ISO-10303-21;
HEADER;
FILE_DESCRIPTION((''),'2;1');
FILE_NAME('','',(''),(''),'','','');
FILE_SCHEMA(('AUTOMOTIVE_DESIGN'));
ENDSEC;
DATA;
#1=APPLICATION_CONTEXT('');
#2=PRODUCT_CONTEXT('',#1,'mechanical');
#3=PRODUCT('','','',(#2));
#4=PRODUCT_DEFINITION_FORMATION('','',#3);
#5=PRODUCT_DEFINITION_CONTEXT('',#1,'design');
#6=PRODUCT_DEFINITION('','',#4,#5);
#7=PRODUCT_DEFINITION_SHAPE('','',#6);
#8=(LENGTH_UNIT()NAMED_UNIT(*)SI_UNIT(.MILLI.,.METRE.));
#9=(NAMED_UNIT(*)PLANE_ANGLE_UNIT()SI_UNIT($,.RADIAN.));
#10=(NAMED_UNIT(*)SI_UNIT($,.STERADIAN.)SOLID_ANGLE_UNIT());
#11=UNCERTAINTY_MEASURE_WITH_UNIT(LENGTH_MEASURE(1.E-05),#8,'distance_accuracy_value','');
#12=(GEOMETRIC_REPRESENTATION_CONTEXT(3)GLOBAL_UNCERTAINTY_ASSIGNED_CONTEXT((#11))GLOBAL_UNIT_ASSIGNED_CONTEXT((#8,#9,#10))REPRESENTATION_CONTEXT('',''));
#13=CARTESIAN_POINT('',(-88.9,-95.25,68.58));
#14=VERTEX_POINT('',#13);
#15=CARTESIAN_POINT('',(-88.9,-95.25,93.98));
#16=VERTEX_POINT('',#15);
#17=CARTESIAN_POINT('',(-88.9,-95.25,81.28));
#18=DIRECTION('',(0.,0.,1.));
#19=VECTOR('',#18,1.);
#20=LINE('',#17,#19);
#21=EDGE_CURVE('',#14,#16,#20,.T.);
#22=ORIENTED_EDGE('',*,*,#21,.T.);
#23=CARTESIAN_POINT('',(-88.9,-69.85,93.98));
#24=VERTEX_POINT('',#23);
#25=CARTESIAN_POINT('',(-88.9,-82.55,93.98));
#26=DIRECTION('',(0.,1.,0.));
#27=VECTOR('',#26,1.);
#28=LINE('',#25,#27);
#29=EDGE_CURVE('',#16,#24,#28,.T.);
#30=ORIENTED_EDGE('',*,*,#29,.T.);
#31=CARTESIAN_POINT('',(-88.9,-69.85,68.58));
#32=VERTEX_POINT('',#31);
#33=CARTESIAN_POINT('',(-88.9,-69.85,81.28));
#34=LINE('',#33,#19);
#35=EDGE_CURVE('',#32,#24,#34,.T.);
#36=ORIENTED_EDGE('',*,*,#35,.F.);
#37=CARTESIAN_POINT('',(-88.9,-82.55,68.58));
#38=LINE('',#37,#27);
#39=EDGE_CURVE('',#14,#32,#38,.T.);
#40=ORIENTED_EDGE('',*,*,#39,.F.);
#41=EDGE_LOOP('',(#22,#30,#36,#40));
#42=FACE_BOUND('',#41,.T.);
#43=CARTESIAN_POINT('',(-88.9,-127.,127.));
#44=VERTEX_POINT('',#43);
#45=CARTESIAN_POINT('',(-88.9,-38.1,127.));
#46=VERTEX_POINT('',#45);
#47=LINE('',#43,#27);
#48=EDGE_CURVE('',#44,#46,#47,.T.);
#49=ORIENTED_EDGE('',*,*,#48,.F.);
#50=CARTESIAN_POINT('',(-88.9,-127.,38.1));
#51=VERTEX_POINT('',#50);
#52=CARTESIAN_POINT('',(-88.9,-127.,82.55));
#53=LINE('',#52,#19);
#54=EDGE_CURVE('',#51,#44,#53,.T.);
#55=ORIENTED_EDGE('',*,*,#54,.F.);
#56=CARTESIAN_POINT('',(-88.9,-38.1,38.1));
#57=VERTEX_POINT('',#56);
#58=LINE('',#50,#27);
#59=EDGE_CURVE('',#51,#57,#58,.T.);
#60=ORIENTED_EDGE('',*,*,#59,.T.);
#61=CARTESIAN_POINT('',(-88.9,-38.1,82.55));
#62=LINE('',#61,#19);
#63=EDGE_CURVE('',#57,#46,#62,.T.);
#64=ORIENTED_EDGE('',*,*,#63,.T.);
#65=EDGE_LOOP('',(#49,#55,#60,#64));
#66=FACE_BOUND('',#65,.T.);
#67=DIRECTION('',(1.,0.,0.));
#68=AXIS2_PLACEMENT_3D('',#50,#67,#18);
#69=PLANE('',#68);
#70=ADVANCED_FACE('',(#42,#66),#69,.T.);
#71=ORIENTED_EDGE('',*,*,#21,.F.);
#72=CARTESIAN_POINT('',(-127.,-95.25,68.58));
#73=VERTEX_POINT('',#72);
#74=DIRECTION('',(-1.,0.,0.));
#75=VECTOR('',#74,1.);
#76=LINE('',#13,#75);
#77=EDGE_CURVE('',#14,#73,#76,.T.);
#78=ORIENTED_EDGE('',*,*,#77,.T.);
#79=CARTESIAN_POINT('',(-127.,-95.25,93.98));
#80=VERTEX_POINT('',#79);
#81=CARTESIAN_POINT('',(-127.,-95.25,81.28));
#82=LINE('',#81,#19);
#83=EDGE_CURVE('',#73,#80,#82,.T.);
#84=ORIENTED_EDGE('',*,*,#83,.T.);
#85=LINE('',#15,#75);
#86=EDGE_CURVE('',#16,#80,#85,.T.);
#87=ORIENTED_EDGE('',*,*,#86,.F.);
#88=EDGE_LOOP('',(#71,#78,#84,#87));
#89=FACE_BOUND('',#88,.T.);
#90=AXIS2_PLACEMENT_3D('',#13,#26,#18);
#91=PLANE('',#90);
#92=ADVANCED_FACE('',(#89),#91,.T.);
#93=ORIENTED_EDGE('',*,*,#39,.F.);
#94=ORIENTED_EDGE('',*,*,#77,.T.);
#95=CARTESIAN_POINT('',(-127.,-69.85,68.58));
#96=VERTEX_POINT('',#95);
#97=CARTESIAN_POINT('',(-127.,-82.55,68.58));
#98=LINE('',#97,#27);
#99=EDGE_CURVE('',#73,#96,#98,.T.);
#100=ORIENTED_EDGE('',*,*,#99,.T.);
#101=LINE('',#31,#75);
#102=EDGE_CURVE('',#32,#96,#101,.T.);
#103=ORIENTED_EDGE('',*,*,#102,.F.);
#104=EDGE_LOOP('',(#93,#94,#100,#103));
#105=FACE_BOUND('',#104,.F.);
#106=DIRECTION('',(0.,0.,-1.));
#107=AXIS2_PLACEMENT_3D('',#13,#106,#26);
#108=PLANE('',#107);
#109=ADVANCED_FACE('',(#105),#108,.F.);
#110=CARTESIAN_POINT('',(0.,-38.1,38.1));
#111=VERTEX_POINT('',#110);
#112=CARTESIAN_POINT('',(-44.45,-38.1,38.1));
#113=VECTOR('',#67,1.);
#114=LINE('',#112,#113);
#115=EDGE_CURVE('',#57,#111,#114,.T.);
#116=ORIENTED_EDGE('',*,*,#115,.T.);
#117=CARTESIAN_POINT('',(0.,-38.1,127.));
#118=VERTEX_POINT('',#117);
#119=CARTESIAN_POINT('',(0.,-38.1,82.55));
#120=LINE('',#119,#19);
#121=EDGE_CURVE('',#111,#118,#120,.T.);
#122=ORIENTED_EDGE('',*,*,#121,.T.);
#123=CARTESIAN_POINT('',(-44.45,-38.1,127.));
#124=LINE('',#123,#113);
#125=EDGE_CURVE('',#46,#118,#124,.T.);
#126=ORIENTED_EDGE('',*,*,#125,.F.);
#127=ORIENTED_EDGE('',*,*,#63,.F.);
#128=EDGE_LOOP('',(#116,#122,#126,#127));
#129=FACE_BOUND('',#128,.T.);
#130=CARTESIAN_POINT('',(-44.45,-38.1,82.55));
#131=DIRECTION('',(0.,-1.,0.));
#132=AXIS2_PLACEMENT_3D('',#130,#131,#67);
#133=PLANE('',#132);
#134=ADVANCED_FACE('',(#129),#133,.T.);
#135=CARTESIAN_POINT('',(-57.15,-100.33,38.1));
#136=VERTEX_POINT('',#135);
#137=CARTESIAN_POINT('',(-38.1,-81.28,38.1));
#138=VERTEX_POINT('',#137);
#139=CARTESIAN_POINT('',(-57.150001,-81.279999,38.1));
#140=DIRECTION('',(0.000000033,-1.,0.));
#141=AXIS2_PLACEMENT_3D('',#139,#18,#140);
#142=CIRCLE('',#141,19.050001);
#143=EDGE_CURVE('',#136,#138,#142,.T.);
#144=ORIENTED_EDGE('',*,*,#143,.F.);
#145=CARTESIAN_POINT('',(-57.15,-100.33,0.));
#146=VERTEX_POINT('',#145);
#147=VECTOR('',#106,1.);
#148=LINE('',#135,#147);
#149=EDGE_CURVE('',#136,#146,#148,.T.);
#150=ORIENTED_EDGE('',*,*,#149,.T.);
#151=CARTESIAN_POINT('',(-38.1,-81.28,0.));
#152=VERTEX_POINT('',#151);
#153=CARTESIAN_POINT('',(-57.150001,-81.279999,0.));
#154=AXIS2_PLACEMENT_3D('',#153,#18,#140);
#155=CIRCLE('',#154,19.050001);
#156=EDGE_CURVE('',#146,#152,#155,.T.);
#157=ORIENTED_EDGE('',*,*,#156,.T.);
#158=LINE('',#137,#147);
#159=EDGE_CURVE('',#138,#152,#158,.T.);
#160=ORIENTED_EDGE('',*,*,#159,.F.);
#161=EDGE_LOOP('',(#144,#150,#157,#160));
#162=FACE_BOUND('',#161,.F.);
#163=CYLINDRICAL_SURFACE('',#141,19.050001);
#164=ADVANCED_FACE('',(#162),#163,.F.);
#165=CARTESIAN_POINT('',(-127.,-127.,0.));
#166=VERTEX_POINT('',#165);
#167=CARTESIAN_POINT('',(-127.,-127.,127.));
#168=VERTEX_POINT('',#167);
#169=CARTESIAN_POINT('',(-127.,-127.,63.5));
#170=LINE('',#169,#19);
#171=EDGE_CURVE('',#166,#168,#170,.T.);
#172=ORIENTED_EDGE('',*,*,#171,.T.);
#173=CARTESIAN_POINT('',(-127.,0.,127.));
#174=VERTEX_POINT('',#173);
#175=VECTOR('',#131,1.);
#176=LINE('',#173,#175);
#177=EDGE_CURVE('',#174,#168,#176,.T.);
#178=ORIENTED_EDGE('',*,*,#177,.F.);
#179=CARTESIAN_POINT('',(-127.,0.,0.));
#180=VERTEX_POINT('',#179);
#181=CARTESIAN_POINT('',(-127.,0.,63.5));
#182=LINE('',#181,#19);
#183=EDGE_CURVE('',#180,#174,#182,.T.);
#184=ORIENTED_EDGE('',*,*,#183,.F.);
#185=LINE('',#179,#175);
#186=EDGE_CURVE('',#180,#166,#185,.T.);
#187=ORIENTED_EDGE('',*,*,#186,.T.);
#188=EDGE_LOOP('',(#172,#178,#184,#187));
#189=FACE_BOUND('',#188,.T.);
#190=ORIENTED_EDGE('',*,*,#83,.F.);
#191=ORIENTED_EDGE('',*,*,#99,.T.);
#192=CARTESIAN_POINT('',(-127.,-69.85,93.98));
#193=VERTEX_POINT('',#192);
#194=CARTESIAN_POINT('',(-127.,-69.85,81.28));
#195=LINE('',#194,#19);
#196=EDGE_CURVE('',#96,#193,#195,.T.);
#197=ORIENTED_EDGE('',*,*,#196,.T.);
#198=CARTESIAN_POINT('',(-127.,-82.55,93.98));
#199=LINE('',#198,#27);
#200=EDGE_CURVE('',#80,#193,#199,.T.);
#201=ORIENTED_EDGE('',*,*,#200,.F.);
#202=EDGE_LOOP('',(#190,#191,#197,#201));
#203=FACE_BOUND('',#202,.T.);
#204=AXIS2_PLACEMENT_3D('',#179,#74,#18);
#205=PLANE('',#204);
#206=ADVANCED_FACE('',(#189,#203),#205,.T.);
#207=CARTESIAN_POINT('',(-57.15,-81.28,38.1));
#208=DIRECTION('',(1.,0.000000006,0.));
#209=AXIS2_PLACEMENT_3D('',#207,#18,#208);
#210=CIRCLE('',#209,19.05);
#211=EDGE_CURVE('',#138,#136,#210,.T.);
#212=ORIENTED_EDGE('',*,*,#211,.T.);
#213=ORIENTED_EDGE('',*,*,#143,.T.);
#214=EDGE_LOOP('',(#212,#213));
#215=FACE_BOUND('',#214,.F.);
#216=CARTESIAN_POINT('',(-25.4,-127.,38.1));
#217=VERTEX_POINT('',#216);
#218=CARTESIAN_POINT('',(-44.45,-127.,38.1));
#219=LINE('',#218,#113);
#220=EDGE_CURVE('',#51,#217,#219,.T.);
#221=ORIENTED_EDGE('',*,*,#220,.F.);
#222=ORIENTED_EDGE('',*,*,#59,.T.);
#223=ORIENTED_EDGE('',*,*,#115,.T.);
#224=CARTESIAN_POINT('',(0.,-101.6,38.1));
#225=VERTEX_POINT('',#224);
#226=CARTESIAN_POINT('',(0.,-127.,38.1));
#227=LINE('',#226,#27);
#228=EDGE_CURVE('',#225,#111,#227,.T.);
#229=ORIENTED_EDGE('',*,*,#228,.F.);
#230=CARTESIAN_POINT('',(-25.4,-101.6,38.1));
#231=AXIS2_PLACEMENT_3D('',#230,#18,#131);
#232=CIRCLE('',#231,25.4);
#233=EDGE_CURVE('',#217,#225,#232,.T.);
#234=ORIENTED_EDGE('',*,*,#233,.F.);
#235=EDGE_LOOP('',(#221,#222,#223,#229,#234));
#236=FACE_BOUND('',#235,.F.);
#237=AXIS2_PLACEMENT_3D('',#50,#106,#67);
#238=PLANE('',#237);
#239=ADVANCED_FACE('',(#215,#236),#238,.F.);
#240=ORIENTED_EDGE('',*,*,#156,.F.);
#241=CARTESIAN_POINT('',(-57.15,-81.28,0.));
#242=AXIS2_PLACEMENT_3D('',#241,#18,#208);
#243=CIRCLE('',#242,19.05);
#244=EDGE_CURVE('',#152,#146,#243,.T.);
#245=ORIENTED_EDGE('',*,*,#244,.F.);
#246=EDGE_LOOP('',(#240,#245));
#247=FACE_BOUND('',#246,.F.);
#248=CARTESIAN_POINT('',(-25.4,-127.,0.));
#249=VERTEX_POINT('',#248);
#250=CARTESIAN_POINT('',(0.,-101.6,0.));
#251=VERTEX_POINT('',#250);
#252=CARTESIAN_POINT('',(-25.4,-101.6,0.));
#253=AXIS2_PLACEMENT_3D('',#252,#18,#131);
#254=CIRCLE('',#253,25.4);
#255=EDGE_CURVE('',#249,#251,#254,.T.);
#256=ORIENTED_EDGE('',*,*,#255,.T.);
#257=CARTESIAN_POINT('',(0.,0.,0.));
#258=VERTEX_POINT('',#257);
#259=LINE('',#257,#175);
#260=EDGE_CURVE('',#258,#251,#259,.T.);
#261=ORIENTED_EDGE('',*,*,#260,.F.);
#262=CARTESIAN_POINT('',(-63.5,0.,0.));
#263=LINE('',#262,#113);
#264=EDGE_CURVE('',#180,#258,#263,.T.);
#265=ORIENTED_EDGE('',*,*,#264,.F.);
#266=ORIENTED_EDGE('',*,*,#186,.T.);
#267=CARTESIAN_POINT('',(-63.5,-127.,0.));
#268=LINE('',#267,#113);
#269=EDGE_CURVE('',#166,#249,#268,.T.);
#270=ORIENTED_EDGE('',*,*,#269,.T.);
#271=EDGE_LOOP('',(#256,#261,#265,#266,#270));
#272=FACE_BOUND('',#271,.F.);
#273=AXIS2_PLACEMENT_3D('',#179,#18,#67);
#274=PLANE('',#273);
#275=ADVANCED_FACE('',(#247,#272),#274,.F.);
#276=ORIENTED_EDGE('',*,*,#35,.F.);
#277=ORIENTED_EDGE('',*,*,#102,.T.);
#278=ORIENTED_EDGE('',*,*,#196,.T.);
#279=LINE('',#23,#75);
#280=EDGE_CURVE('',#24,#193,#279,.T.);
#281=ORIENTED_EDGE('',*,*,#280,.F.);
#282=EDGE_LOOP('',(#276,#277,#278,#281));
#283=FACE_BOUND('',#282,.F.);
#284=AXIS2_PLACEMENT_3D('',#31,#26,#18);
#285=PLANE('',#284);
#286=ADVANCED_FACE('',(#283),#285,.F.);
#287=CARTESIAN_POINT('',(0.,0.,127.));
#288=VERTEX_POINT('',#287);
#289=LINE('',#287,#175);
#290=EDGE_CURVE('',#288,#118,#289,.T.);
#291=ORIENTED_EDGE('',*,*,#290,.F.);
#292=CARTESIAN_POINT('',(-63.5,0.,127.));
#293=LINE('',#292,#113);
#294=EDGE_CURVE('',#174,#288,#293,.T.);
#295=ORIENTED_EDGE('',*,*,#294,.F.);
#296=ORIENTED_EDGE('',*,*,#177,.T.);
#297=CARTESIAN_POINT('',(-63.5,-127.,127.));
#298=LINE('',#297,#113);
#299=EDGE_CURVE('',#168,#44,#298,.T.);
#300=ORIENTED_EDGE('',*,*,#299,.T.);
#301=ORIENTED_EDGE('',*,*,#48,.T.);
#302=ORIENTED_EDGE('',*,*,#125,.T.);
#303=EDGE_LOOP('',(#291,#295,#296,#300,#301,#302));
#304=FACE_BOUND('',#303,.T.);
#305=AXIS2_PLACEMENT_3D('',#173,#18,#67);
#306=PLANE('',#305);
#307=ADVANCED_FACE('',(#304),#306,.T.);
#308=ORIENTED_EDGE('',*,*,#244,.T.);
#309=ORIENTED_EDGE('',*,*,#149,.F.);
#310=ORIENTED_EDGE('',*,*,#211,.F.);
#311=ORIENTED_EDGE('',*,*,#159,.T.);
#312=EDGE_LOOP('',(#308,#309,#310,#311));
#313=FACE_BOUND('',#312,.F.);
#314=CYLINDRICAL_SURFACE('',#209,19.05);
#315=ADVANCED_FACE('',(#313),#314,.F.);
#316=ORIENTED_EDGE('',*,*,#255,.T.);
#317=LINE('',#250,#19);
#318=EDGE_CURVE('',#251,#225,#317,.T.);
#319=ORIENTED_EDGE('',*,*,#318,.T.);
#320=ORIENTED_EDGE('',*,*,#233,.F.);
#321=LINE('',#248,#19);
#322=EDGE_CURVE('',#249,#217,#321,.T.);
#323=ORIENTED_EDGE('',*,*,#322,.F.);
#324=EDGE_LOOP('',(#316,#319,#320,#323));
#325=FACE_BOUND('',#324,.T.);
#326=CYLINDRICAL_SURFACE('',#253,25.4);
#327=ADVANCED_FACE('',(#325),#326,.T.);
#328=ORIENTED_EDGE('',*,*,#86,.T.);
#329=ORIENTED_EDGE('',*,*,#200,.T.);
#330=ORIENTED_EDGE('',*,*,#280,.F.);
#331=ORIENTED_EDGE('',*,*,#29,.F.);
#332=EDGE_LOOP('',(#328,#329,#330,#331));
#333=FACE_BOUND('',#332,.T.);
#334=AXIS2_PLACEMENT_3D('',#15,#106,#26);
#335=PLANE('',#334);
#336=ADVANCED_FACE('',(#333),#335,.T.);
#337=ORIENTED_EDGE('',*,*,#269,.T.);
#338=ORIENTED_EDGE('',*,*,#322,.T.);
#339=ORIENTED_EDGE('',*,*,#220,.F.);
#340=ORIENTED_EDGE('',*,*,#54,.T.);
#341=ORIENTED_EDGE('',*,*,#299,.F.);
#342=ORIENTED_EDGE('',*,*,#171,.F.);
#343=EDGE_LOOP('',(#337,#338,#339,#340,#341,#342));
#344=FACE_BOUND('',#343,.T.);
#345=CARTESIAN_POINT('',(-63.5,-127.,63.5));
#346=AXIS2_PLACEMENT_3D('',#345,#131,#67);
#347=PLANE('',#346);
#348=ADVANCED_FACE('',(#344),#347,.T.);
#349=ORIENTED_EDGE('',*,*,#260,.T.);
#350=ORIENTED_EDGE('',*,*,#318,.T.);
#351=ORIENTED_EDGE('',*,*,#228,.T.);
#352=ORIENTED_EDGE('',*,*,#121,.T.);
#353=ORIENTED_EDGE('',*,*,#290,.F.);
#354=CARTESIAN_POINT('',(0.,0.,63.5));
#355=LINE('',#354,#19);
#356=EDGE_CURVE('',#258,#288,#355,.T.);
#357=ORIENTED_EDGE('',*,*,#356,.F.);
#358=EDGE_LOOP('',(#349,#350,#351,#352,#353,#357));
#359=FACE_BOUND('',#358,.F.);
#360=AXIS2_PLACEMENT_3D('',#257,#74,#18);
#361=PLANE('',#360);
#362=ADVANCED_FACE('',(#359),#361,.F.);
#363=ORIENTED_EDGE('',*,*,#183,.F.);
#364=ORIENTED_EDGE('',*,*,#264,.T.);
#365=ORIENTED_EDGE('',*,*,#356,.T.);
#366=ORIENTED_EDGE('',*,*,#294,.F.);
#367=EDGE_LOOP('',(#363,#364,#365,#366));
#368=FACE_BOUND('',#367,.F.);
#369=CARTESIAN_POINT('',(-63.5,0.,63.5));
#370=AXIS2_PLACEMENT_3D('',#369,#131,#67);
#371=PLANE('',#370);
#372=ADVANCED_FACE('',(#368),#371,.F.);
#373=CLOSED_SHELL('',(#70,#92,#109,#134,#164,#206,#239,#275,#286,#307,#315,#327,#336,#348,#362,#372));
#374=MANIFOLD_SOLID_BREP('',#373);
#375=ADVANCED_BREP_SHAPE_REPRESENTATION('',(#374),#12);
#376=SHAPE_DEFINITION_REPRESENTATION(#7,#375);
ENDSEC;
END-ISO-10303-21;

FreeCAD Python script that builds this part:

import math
import FreeCAD as App
import Part
import Sketcher
from FreeCAD import Vector
Q = App.Units.Quantity


def edges_at(feature, points):
    """Names of the edges that pass closest to the given points."""
    edges = feature.Shape.Edges
    near = lambda p: min(range(len(edges)), key=lambda i: edges[i].distToShape(Part.Vertex(*p))[0])
    return sorted({f"Edge{near(p) + 1}" for p in points})


def add_polygon(sketch, points):
    """Adds a closed chain of lines whose ends are joined by coincident constraints."""
    first, n = sketch.GeometryCount, len(points)
    for a, b in zip(points, points[1:] + points[:1]):
        sketch.addGeometry(Part.LineSegment(App.Vector(*a, 0), App.Vector(*b, 0)), False)
    for i in range(n):
        sketch.addConstraint(Sketcher.Constraint("Coincident", first + i, 2, first + (i + 1) % n, 1))

doc = App.newDocument("Part")
body = doc.addObject("PartDesign::Body", "Body")

# Sketch on XZ plane
sketch1 = doc.addObject("Sketcher::SketchObject", "Sketch")
body.addObject(sketch1)
sketch1.AttachmentSupport = (doc.XZ_Plane, [""])
sketch1.MapMode = "FlatFace"
add_polygon(sketch1, [(-127, 127), (-127, 0), (0, 0), (0, 127)])  # lines 0-3
sketch1.addConstraint(Sketcher.Constraint("Vertical", 0))
sketch1.addConstraint(Sketcher.Constraint("Horizontal", 1))
sketch1.addConstraint(Sketcher.Constraint("Vertical", 2))
sketch1.addConstraint(Sketcher.Constraint("Horizontal", 3))
sketch1.addConstraint(Sketcher.Constraint("Coincident", 1, 2, -1, 1))
sketch1.addConstraint(Sketcher.Constraint("Equal", 3, 0))
sketch1.addConstraint(Sketcher.Constraint("DistanceX", 1, 1, 1, 2, Q("5 in")))
pad1 = doc.addObject("PartDesign::Pad", "Pad")
body.addObject(pad1)
pad1.Profile = sketch1
pad1.Length = Q("5 in")

# Sketch on XZ plane
sketch2 = doc.addObject("Sketcher::SketchObject", "Sketch001")
body.addObject(sketch2)
sketch2.AttachmentSupport = (doc.XZ_Plane, [""])
sketch2.MapMode = "FlatFace"
sketch2.AttachmentOffset = App.Placement(Vector(0, 0, 5 * 25.4), App.Rotation())
add_polygon(sketch2, [(-89, 127), (-89, 38), (0, 38), (0, 127)])  # lines 0-3
sketch2.addConstraint(Sketcher.Constraint("Vertical", 0))
sketch2.addConstraint(Sketcher.Constraint("Horizontal", 1))
sketch2.addConstraint(Sketcher.Constraint("Vertical", 2))
sketch2.addConstraint(Sketcher.Constraint("Horizontal", 3))
sketch2.addConstraint(Sketcher.Constraint("PointOnObject", 1, 2, -2))
sketch2.addConstraint(Sketcher.Constraint("Equal", 3, 0))
sketch2.addConstraint(Sketcher.Constraint("DistanceX", 1, 1, 1, 2, Q("3.5 in")))
sketch2.addConstraint(Sketcher.Constraint("DistanceY", -1, 1, 2, 2, Q("5 in")))
pocket1 = doc.addObject("PartDesign::Pocket", "Pocket")
body.addObject(pocket1)
pocket1.Profile = sketch2
pocket1.Length = Q("3.5 in")
doc.recompute()

fillet = doc.addObject("PartDesign::Fillet", "Fillet")
body.addObject(fillet)
fillet.Base = (pocket1, edges_at(pocket1, [(0, -127, 19.05)]))
fillet.Radius = Q("1 in")

# Sketch on YZ plane
sketch3 = doc.addObject("Sketcher::SketchObject", "Sketch002")
body.addObject(sketch3)
sketch3.AttachmentSupport = (doc.YZ_Plane, [""])
sketch3.MapMode = "FlatFace"
sketch3.AttachmentOffset = App.Placement(Vector(0, 0, -3.5 * 25.4), App.Rotation())
add_polygon(sketch3, [(-95, 94), (-95, 69), (-70, 69), (-70, 94)])  # lines 0-3
sketch3.addConstraint(Sketcher.Constraint("Vertical", 0))
sketch3.addConstraint(Sketcher.Constraint("Horizontal", 1))
sketch3.addConstraint(Sketcher.Constraint("Vertical", 2))
sketch3.addConstraint(Sketcher.Constraint("Horizontal", 3))
sketch3.addConstraint(Sketcher.Constraint("Equal", 3, 0))
sketch3.addConstraint(Sketcher.Constraint("DistanceX", 1, 1, 1, 2, Q("1 in")))
sketch3.addConstraint(Sketcher.Constraint("DistanceY", -1, 1, 0, 2, Q("2.7 in")))
sketch3.addConstraint(Sketcher.Constraint("DistanceX", 0, 2, -1, 1, Q("3.75 in")))
pocket2 = doc.addObject("PartDesign::Pocket", "Pocket001")
body.addObject(pocket2)
pocket2.Profile = sketch3
pocket2.Length = Q("1.5 in")

# Sketch on XY plane
sketch4 = doc.addObject("Sketcher::SketchObject", "Sketch003")
body.addObject(sketch4)
sketch4.AttachmentSupport = (doc.XY_Plane, [""])
sketch4.MapMode = "FlatFace"
sketch4.AttachmentOffset = App.Placement(Vector(0, 0, 1.5 * 25.4), App.Rotation())
sketch4.addGeometry(Part.ArcOfCircle(Part.Circle(Vector(-57, -81, 0), Vector(0, 0, 1), 19), math.radians(0), math.radians(270)), False)
sketch4.addGeometry(Part.ArcOfCircle(Part.Circle(Vector(-57, -81, 0), Vector(0, 0, 1), 19), math.radians(-90), math.radians(0)), False)
sketch4.addConstraint(Sketcher.Constraint("Tangent", 0, 1, 1, 2))
sketch4.addConstraint(Sketcher.Constraint("Coincident", 1, 1, 0, 2))
sketch4.addConstraint(Sketcher.Constraint("Horizontal", 1, 3, 0, 1))
sketch4.addConstraint(Sketcher.Constraint("Vertical", 0, 3, 1, 1))
sketch4.addConstraint(Sketcher.Constraint("Radius", 0, Q("0.75 in")))
sketch4.addConstraint(Sketcher.Constraint("DistanceY", 0, 3, -1, 1, Q("3.2 in")))
sketch4.addConstraint(Sketcher.Constraint("DistanceX", 0, 1, -1, 1, Q("1.5 in")))
pocket3 = doc.addObject("PartDesign::Pocket", "Pocket002")
body.addObject(pocket3)
pocket3.Profile = sketch4
pocket3.Length = Q("1.5 in")

doc.recompute()
